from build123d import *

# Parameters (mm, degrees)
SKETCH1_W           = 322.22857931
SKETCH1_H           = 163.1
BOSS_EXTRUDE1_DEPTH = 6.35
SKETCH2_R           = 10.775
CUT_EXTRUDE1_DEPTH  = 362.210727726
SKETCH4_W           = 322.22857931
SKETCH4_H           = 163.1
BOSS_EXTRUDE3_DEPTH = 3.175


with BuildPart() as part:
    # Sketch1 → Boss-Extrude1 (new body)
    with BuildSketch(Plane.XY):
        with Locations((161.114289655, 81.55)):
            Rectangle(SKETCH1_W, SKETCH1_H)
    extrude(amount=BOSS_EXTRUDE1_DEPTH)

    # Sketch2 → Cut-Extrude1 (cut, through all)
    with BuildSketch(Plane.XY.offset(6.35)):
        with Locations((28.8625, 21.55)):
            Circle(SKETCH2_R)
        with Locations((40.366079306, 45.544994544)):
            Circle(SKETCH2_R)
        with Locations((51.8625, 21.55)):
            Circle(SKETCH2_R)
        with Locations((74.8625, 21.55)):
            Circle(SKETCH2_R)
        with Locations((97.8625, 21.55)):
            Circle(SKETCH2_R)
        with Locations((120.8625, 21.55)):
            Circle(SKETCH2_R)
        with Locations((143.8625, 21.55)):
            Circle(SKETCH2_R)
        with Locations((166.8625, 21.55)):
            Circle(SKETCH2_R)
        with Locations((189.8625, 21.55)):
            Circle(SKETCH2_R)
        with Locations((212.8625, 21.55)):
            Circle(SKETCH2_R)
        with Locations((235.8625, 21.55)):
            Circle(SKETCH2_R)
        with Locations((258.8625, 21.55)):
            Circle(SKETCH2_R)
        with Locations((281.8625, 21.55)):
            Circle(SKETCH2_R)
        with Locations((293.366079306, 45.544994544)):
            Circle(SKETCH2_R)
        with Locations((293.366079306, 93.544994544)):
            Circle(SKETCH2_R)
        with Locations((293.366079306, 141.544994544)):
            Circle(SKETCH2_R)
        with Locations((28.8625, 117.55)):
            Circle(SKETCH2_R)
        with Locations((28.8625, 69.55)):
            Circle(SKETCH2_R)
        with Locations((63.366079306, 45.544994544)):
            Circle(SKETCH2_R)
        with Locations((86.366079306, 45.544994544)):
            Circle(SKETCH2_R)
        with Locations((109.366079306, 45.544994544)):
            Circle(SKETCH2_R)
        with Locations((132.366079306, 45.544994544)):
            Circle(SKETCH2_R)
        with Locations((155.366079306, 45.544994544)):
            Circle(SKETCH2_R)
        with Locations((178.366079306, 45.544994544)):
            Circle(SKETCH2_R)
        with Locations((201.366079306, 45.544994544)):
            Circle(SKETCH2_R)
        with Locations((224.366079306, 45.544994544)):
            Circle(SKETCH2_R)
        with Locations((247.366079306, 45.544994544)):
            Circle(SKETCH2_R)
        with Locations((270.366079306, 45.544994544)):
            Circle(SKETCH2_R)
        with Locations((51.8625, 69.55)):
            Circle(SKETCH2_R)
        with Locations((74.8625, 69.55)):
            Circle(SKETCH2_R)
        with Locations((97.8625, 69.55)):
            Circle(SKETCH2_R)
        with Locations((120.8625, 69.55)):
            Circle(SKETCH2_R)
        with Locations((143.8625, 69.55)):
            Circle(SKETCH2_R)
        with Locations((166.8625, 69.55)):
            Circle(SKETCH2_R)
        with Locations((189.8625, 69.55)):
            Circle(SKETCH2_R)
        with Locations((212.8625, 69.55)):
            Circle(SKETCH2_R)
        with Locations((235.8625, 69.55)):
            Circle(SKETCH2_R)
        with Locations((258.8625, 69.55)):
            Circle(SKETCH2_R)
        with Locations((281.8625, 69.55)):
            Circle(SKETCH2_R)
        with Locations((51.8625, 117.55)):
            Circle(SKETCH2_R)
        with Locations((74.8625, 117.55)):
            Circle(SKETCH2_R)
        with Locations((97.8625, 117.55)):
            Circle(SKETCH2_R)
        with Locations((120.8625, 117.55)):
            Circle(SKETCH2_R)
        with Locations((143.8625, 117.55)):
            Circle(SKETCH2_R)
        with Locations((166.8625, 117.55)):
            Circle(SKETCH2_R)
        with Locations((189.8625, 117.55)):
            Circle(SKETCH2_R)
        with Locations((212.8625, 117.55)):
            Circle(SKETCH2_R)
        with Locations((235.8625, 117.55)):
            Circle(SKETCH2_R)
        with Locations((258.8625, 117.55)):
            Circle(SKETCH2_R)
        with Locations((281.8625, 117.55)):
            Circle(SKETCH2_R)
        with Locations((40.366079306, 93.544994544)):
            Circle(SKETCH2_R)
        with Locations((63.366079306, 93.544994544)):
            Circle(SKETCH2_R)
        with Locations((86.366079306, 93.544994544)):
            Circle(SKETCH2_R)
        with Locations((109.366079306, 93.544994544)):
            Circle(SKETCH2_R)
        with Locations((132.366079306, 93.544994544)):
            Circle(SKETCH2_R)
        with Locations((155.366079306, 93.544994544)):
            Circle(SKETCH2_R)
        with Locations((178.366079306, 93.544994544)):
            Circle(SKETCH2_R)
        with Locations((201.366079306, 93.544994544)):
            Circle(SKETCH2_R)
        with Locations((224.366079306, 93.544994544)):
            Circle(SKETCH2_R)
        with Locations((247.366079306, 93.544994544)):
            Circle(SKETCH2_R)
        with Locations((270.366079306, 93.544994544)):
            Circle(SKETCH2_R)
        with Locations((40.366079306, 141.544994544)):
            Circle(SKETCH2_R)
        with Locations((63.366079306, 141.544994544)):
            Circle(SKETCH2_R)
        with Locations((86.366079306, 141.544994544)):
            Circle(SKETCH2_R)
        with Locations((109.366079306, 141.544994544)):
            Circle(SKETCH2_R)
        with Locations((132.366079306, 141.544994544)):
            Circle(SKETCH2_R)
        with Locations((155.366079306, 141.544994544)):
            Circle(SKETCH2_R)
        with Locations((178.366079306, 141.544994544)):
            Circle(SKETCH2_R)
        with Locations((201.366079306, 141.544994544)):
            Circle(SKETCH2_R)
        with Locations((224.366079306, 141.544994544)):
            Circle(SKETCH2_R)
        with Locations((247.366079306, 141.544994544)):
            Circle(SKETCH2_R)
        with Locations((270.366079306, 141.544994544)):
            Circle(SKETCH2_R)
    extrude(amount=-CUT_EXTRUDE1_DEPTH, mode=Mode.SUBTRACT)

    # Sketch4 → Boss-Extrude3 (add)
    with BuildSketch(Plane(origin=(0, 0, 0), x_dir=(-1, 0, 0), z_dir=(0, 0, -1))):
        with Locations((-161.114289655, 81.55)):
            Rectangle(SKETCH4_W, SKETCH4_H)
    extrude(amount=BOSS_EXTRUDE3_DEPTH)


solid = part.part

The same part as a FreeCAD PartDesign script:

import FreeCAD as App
import Part
import Sketcher
from FreeCAD import Vector
Q = App.Units.Quantity


def add_polygon(sketch, points):
    """Adds a closed chain of lines whose ends are joined by coincident constraints."""
    first, n = sketch.GeometryCount, len(points)
    for a, b in zip(points, points[1:] + points[:1]):
        sketch.addGeometry(Part.LineSegment(App.Vector(*a, 0), App.Vector(*b, 0)), False)
    for i in range(n):
        sketch.addConstraint(Sketcher.Constraint("Coincident", first + i, 2, first + (i + 1) % n, 1))

doc = App.newDocument("Part")
body = doc.addObject("PartDesign::Body", "Body")

sketch1 = doc.addObject("Sketcher::SketchObject", "Sketch")
body.addObject(sketch1)
sketch1.AttachmentSupport = (doc.XY_Plane, [""])
sketch1.MapMode = "FlatFace"
add_polygon(sketch1, [(0, 163), (0, 0), (322, 0), (322, 163)])
sketch1.addConstraint(Sketcher.Constraint("Vertical", 0))
sketch1.addConstraint(Sketcher.Constraint("Horizontal", 1))
sketch1.addConstraint(Sketcher.Constraint("Vertical", 2))
sketch1.addConstraint(Sketcher.Constraint("Horizontal", 3))
sketch1.addConstraint(Sketcher.Constraint("Coincident", 0, 2, -1, 1))
sketch1.addConstraint(Sketcher.Constraint("DistanceY", 0, 2, 0, 1, 163.1))
sketch1.addConstraint(Sketcher.Constraint("DistanceX", 1, 1, 1, 2, 322.228579))
pad1 = doc.addObject("PartDesign::Pad", "Pad")
body.addObject(pad1)
pad1.Profile = sketch1
pad1.Length = Q("0.25 in")

sketch2 = doc.addObject("Sketcher::SketchObject", "Sketch001")
body.addObject(sketch2)
sketch2.AttachmentSupport = (doc.XY_Plane, [""])
sketch2.MapMode = "FlatFace"
sketch2.AttachmentOffset = App.Placement(Vector(0, 0, 0.25 * 25.4), App.Rotation())
sketch2.addGeometry(Part.Circle(Vector(29, 22, 0), Vector(0, 0, 1), 11), False)
sketch2.addGeometry(Part.Circle(Vector(40, 46, 0), Vector(0, 0, 1), 11), False)
sketch2.addGeometry(Part.Circle(Vector(52, 22, 0), Vector(0, 0, 1), 11), False)
sketch2.addGeometry(Part.Circle(Vector(75, 22, 0), Vector(0, 0, 1), 11), False)
sketch2.addGeometry(Part.Circle(Vector(98, 22, 0), Vector(0, 0, 1), 11), False)
sketch2.addGeometry(Part.Circle(Vector(121, 22, 0), Vector(0, 0, 1), 11), False)
sketch2.addGeometry(Part.Circle(Vector(144, 22, 0), Vector(0, 0, 1), 11), False)
sketch2.addGeometry(Part.Circle(Vector(167, 22, 0), Vector(0, 0, 1), 11), False)
sketch2.addGeometry(Part.Circle(Vector(190, 22, 0), Vector(0, 0, 1), 11), False)
sketch2.addGeometry(Part.Circle(Vector(213, 22, 0), Vector(0, 0, 1), 11), False)
sketch2.addGeometry(Part.Circle(Vector(236, 22, 0), Vector(0, 0, 1), 11), False)
sketch2.addGeometry(Part.Circle(Vector(259, 22, 0), Vector(0, 0, 1), 11), False)
sketch2.addGeometry(Part.Circle(Vector(282, 22, 0), Vector(0, 0, 1), 11), False)
sketch2.addGeometry(Part.Circle(Vector(293, 46, 0), Vector(0, 0, 1), 11), False)
sketch2.addGeometry(Part.Circle(Vector(293, 94, 0), Vector(0, 0, 1), 11), False)
sketch2.addGeometry(Part.Circle(Vector(293, 142, 0), Vector(0, 0, 1), 11), False)
sketch2.addGeometry(Part.Circle(Vector(29, 118, 0), Vector(0, 0, 1), 11), False)
sketch2.addGeometry(Part.Circle(Vector(29, 70, 0), Vector(0, 0, 1), 11), False)
sketch2.addGeometry(Part.Circle(Vector(63, 46, 0), Vector(0, 0, 1), 11), False)
sketch2.addGeometry(Part.Circle(Vector(86, 46, 0), Vector(0, 0, 1), 11), False)
sketch2.addGeometry(Part.Circle(Vector(109, 46, 0), Vector(0, 0, 1), 11), False)
sketch2.addGeometry(Part.Circle(Vector(132, 46, 0), Vector(0, 0, 1), 11), False)
sketch2.addGeometry(Part.Circle(Vector(155, 46, 0), Vector(0, 0, 1), 11), False)
sketch2.addGeometry(Part.Circle(Vector(178, 46, 0), Vector(0, 0, 1), 11), False)
sketch2.addGeometry(Part.Circle(Vector(201, 46, 0), Vector(0, 0, 1), 11), False)
sketch2.addGeometry(Part.Circle(Vector(224, 46, 0), Vector(0, 0, 1), 11), False)
sketch2.addGeometry(Part.Circle(Vector(247, 46, 0), Vector(0, 0, 1), 11), False)
sketch2.addGeometry(Part.Circle(Vector(270, 46, 0), Vector(0, 0, 1), 11), False)
sketch2.addGeometry(Part.Circle(Vector(52, 70, 0), Vector(0, 0, 1), 11), False)
sketch2.addGeometry(Part.Circle(Vector(75, 70, 0), Vector(0, 0, 1), 11), False)
sketch2.addGeometry(Part.Circle(Vector(98, 70, 0), Vector(0, 0, 1), 11), False)
sketch2.addGeometry(Part.Circle(Vector(121, 70, 0), Vector(0, 0, 1), 11), False)
sketch2.addGeometry(Part.Circle(Vector(144, 70, 0), Vector(0, 0, 1), 11), False)
sketch2.addGeometry(Part.Circle(Vector(167, 70, 0), Vector(0, 0, 1), 11), False)
sketch2.addGeometry(Part.Circle(Vector(190, 70, 0), Vector(0, 0, 1), 11), False)
sketch2.addGeometry(Part.Circle(Vector(213, 70, 0), Vector(0, 0, 1), 11), False)
sketch2.addGeometry(Part.Circle(Vector(236, 70, 0), Vector(0, 0, 1), 11), False)
sketch2.addGeometry(Part.Circle(Vector(259, 70, 0), Vector(0, 0, 1), 11), False)
sketch2.addGeometry(Part.Circle(Vector(282, 70, 0), Vector(0, 0, 1), 11), False)
sketch2.addGeometry(Part.Circle(Vector(52, 118, 0), Vector(0, 0, 1), 11), False)
sketch2.addGeometry(Part.Circle(Vector(75, 118, 0), Vector(0, 0, 1), 11), False)
sketch2.addGeometry(Part.Circle(Vector(98, 118, 0), Vector(0, 0, 1), 11), False)
sketch2.addGeometry(Part.Circle(Vector(121, 118, 0), Vector(0, 0, 1), 11), False)
sketch2.addGeometry(Part.Circle(Vector(144, 118, 0), Vector(0, 0, 1), 11), False)
sketch2.addGeometry(Part.Circle(Vector(167, 118, 0), Vector(0, 0, 1), 11), False)
sketch2.addGeometry(Part.Circle(Vector(190, 118, 0), Vector(0, 0, 1), 11), False)
sketch2.addGeometry(Part.Circle(Vector(213, 118, 0), Vector(0, 0, 1), 11), False)
sketch2.addGeometry(Part.Circle(Vector(236, 118, 0), Vector(0, 0, 1), 11), False)
sketch2.addGeometry(Part.Circle(Vector(259, 118, 0), Vector(0, 0, 1), 11), False)
sketch2.addGeometry(Part.Circle(Vector(282, 118, 0), Vector(0, 0, 1), 11), False)
sketch2.addGeometry(Part.Circle(Vector(40, 94, 0), Vector(0, 0, 1), 11), False)
sketch2.addGeometry(Part.Circle(Vector(63, 94, 0), Vector(0, 0, 1), 11), False)
sketch2.addGeometry(Part.Circle(Vector(86, 94, 0), Vector(0, 0, 1), 11), False)
sketch2.addGeometry(Part.Circle(Vector(109, 94, 0), Vector(0, 0, 1), 11), False)
sketch2.addGeometry(Part.Circle(Vector(132, 94, 0), Vector(0, 0, 1), 11), False)
sketch2.addGeometry(Part.Circle(Vector(155, 94, 0), Vector(0, 0, 1), 11), False)
sketch2.addGeometry(Part.Circle(Vector(178, 94, 0), Vector(0, 0, 1), 11), False)
sketch2.addGeometry(Part.Circle(Vector(201, 94, 0), Vector(0, 0, 1), 11), False)
sketch2.addGeometry(Part.Circle(Vector(224, 94, 0), Vector(0, 0, 1), 11), False)
sketch2.addGeometry(Part.Circle(Vector(247, 94, 0), Vector(0, 0, 1), 11), False)
sketch2.addGeometry(Part.Circle(Vector(270, 94, 0), Vector(0, 0, 1), 11), False)
sketch2.addGeometry(Part.Circle(Vector(40, 142, 0), Vector(0, 0, 1), 11), False)
sketch2.addGeometry(Part.Circle(Vector(63, 142, 0), Vector(0, 0, 1), 11), False)
sketch2.addGeometry(Part.Circle(Vector(86, 142, 0), Vector(0, 0, 1), 11), False)
sketch2.addGeometry(Part.Circle(Vector(109, 142, 0), Vector(0, 0, 1), 11), False)
sketch2.addGeometry(Part.Circle(Vector(132, 142, 0), Vector(0, 0, 1), 11), False)
sketch2.addGeometry(Part.Circle(Vector(155, 142, 0), Vector(0, 0, 1), 11), False)
sketch2.addGeometry(Part.Circle(Vector(178, 142, 0), Vector(0, 0, 1), 11), False)
sketch2.addGeometry(Part.Circle(Vector(201, 142, 0), Vector(0, 0, 1), 11), False)
sketch2.addGeometry(Part.Circle(Vector(224, 142, 0), Vector(0, 0, 1), 11), False)
sketch2.addGeometry(Part.Circle(Vector(247, 142, 0), Vector(0, 0, 1), 11), False)
sketch2.addGeometry(Part.Circle(Vector(270, 142, 0), Vector(0, 0, 1), 11), False)
sketch2.addConstraint(Sketcher.Constraint("Equal", 0, 1))
sketch2.addConstraint(Sketcher.Constraint("Equal", 1, 2))
sketch2.addConstraint(Sketcher.Constraint("Equal", 2, 3))
sketch2.addConstraint(Sketcher.Constraint("Equal", 3, 4))
sketch2.addConstraint(Sketcher.Constraint("Equal", 4, 5))
sketch2.addConstraint(Sketcher.Constraint("Equal", 5, 6))
sketch2.addConstraint(Sketcher.Constraint("Equal", 6, 7))
sketch2.addConstraint(Sketcher.Constraint("Equal", 7, 8))
sketch2.addConstraint(Sketcher.Constraint("Equal", 8, 9))
sketch2.addConstraint(Sketcher.Constraint("Equal", 9, 10))
sketch2.addConstraint(Sketcher.Constraint("Equal", 10, 11))
sketch2.addConstraint(Sketcher.Constraint("Equal", 11, 12))
sketch2.addConstraint(Sketcher.Constraint("Equal", 12, 13))
sketch2.addConstraint(Sketcher.Constraint("Equal", 13, 14))
sketch2.addConstraint(Sketcher.Constraint("Equal", 14, 15))
sketch2.addConstraint(Sketcher.Constraint("Equal", 15, 16))
sketch2.addConstraint(Sketcher.Constraint("Equal", 16, 17))
sketch2.addConstraint(Sketcher.Constraint("Equal", 17, 18))
sketch2.addConstraint(Sketcher.Constraint("Equal", 18, 19))
sketch2.addConstraint(Sketcher.Constraint("Equal", 19, 20))
sketch2.addConstraint(Sketcher.Constraint("Equal", 20, 21))
sketch2.addConstraint(Sketcher.Constraint("Equal", 21, 22))
sketch2.addConstraint(Sketcher.Constraint("Equal", 22, 23))
sketch2.addConstraint(Sketcher.Constraint("Equal", 23, 24))
sketch2.addConstraint(Sketcher.Constraint("Equal", 24, 25))
sketch2.addConstraint(Sketcher.Constraint("Equal", 25, 26))
sketch2.addConstraint(Sketcher.Constraint("Equal", 26, 27))
sketch2.addConstraint(Sketcher.Constraint("Equal", 27, 28))
sketch2.addConstraint(Sketcher.Constraint("Equal", 28, 29))
sketch2.addConstraint(Sketcher.Constraint("Equal", 29, 30))
sketch2.addConstraint(Sketcher.Constraint("Equal", 30, 31))
sketch2.addConstraint(Sketcher.Constraint("Equal", 31, 32))
sketch2.addConstraint(Sketcher.Constraint("Equal", 32, 33))
sketch2.addConstraint(Sketcher.Constraint("Equal", 33, 34))
sketch2.addConstraint(Sketcher.Constraint("Equal", 34, 35))
sketch2.addConstraint(Sketcher.Constraint("Equal", 35, 36))
sketch2.addConstraint(Sketcher.Constraint("Equal", 36, 37))
sketch2.addConstraint(Sketcher.Constraint("Equal", 37, 38))
sketch2.addConstraint(Sketcher.Constraint("Equal", 38, 39))
sketch2.addConstraint(Sketcher.Constraint("Equal", 39, 40))
sketch2.addConstraint(Sketcher.Constraint("Equal", 40, 41))
sketch2.addConstraint(Sketcher.Constraint("Equal", 41, 42))
sketch2.addConstraint(Sketcher.Constraint("Equal", 42, 43))
sketch2.addConstraint(Sketcher.Constraint("Equal", 43, 44))
sketch2.addConstraint(Sketcher.Constraint("Equal", 44, 45))
sketch2.addConstraint(Sketcher.Constraint("Equal", 45, 46))
sketch2.addConstraint(Sketcher.Constraint("Equal", 46, 47))
sketch2.addConstraint(Sketcher.Constraint("Equal", 47, 48))
sketch2.addConstraint(Sketcher.Constraint("Equal", 48, 49))
sketch2.addConstraint(Sketcher.Constraint("Equal", 49, 50))
sketch2.addConstraint(Sketcher.Constraint("Equal", 50, 51))
sketch2.addConstraint(Sketcher.Constraint("Equal", 51, 52))
sketch2.addConstraint(Sketcher.Constraint("Equal", 52, 53))
sketch2.addConstraint(Sketcher.Constraint("Equal", 53, 54))
sketch2.addConstraint(Sketcher.Constraint("Equal", 54, 55))
sketch2.addConstraint(Sketcher.Constraint("Equal", 55, 56))
sketch2.addConstraint(Sketcher.Constraint("Equal", 56, 57))
sketch2.addConstraint(Sketcher.Constraint("Equal", 57, 58))
sketch2.addConstraint(Sketcher.Constraint("Equal", 58, 59))
sketch2.addConstraint(Sketcher.Constraint("Equal", 59, 60))
sketch2.addConstraint(Sketcher.Constraint("Equal", 60, 61))
sketch2.addConstraint(Sketcher.Constraint("Equal", 61, 62))
sketch2.addConstraint(Sketcher.Constraint("Equal", 62, 63))
sketch2.addConstraint(Sketcher.Constraint("Equal", 63, 64))
sketch2.addConstraint(Sketcher.Constraint("Equal", 64, 65))
sketch2.addConstraint(Sketcher.Constraint("Equal", 65, 66))
sketch2.addConstraint(Sketcher.Constraint("Equal", 66, 67))
sketch2.addConstraint(Sketcher.Constraint("Equal", 67, 68))
sketch2.addConstraint(Sketcher.Constraint("Equal", 68, 69))
sketch2.addConstraint(Sketcher.Constraint("Equal", 69, 70))
sketch2.addConstraint(Sketcher.Constraint("Equal", 70, 71))
sketch2.addConstraint(Sketcher.Constraint("Horizontal", 0, 3, 2, 3))
sketch2.addConstraint(Sketcher.Constraint("Horizontal", 2, 3, 3, 3))
sketch2.addConstraint(Sketcher.Constraint("Horizontal", 3, 3, 4, 3))
sketch2.addConstraint(Sketcher.Constraint("Horizontal", 4, 3, 5, 3))
sketch2.addConstraint(Sketcher.Constraint("Horizontal", 5, 3, 6, 3))
sketch2.addConstraint(Sketcher.Constraint("Horizontal", 6, 3, 7, 3))
sketch2.addConstraint(Sketcher.Constraint("Horizontal", 7, 3, 8, 3))
sketch2.addConstraint(Sketcher.Constraint("Horizontal", 8, 3, 9, 3))
sketch2.addConstraint(Sketcher.Constraint("Horizontal", 9, 3, 10, 3))
sketch2.addConstraint(Sketcher.Constraint("Horizontal", 10, 3, 11, 3))
sketch2.addConstraint(Sketcher.Constraint("Horizontal", 11, 3, 12, 3))
sketch2.addConstraint(Sketcher.Constraint("Horizontal", 1, 3, 13, 3))
sketch2.addConstraint(Sketcher.Constraint("Horizontal", 13, 3, 18, 3))
sketch2.addConstraint(Sketcher.Constraint("Horizontal", 18, 3, 19, 3))
sketch2.addConstraint(Sketcher.Constraint("Horizontal", 19, 3, 20, 3))
sketch2.addConstraint(Sketcher.Constraint("Horizontal", 20, 3, 21, 3))
sketch2.addConstraint(Sketcher.Constraint("Horizontal", 21, 3, 22, 3))
sketch2.addConstraint(Sketcher.Constraint("Horizontal", 22, 3, 23, 3))
sketch2.addConstraint(Sketcher.Constraint("Horizontal", 23, 3, 24, 3))
sketch2.addConstraint(Sketcher.Constraint("Horizontal", 24, 3, 25, 3))
sketch2.addConstraint(Sketcher.Constraint("Horizontal", 25, 3, 26, 3))
sketch2.addConstraint(Sketcher.Constraint("Horizontal", 26, 3, 27, 3))
sketch2.addConstraint(Sketcher.Constraint("Horizontal", 17, 3, 28, 3))
sketch2.addConstraint(Sketcher.Constraint("Horizontal", 28, 3, 29, 3))
sketch2.addConstraint(Sketcher.Constraint("Horizontal", 29, 3, 30, 3))
sketch2.addConstraint(Sketcher.Constraint("Horizontal", 30, 3, 31, 3))
sketch2.addConstraint(Sketcher.Constraint("Horizontal", 31, 3, 32, 3))
sketch2.addConstraint(Sketcher.Constraint("Horizontal", 32, 3, 33, 3))
sketch2.addConstraint(Sketcher.Constraint("Horizontal", 33, 3, 34, 3))
sketch2.addConstraint(Sketcher.Constraint("Horizontal", 34, 3, 35, 3))
sketch2.addConstraint(Sketcher.Constraint("Horizontal", 35, 3, 36, 3))
sketch2.addConstraint(Sketcher.Constraint("Horizontal", 36, 3, 37, 3))
sketch2.addConstraint(Sketcher.Constraint("Horizontal", 37, 3, 38, 3))
sketch2.addConstraint(Sketcher.Constraint("Horizontal", 16, 3, 39, 3))
sketch2.addConstraint(Sketcher.Constraint("Horizontal", 39, 3, 40, 3))
sketch2.addConstraint(Sketcher.Constraint("Horizontal", 40, 3, 41, 3))
sketch2.addConstraint(Sketcher.Constraint("Horizontal", 41, 3, 42, 3))
sketch2.addConstraint(Sketcher.Constraint("Horizontal", 42, 3, 43, 3))
sketch2.addConstraint(Sketcher.Constraint("Horizontal", 43, 3, 44, 3))
sketch2.addConstraint(Sketcher.Constraint("Horizontal", 44, 3, 45, 3))
sketch2.addConstraint(Sketcher.Constraint("Horizontal", 45, 3, 46, 3))
sketch2.addConstraint(Sketcher.Constraint("Horizontal", 46, 3, 47, 3))
sketch2.addConstraint(Sketcher.Constraint("Horizontal", 47, 3, 48, 3))
sketch2.addConstraint(Sketcher.Constraint("Horizontal", 48, 3, 49, 3))
sketch2.addConstraint(Sketcher.Constraint("Horizontal", 14, 3, 50, 3))
sketch2.addConstraint(Sketcher.Constraint("Horizontal", 50, 3, 51, 3))
sketch2.addConstraint(Sketcher.Constraint("Horizontal", 51, 3, 52, 3))
sketch2.addConstraint(Sketcher.Constraint("Horizontal", 52, 3, 53, 3))
sketch2.addConstraint(Sketcher.Constraint("Horizontal", 53, 3, 54, 3))
sketch2.addConstraint(Sketcher.Constraint("Horizontal", 54, 3, 55, 3))
sketch2.addConstraint(Sketcher.Constraint("Horizontal", 55, 3, 56, 3))
sketch2.addConstraint(Sketcher.Constraint("Horizontal", 56, 3, 57, 3))
sketch2.addConstraint(Sketcher.Constraint("Horizontal", 57, 3, 58, 3))
sketch2.addConstraint(Sketcher.Constraint("Horizontal", 58, 3, 59, 3))
sketch2.addConstraint(Sketcher.Constraint("Horizontal", 59, 3, 60, 3))
sketch2.addConstraint(Sketcher.Constraint("Horizontal", 15, 3, 61, 3))
sketch2.addConstraint(Sketcher.Constraint("Horizontal", 61, 3, 62, 3))
sketch2.addConstraint(Sketcher.Constraint("Horizontal", 62, 3, 63, 3))
sketch2.addConstraint(Sketcher.Constraint("Horizontal", 63, 3, 64, 3))
sketch2.addConstraint(Sketcher.Constraint("Horizontal", 64, 3, 65, 3))
sketch2.addConstraint(Sketcher.Constraint("Horizontal", 65, 3, 66, 3))
sketch2.addConstraint(Sketcher.Constraint("Horizontal", 66, 3, 67, 3))
sketch2.addConstraint(Sketcher.Constraint("Horizontal", 67, 3, 68, 3))
sketch2.addConstraint(Sketcher.Constraint("Horizontal", 68, 3, 69, 3))
sketch2.addConstraint(Sketcher.Constraint("Horizontal", 69, 3, 70, 3))
sketch2.addConstraint(Sketcher.Constraint("Horizontal", 70, 3, 71, 3))
sketch2.addConstraint(Sketcher.Constraint("Vertical", 13, 3, 14, 3))
sketch2.addConstraint(Sketcher.Constraint("Vertical", 14, 3, 15, 3))
sketch2.addConstraint(Sketcher.Constraint("Vertical", 0, 3, 16, 3))
sketch2.addConstraint(Sketcher.Constraint("Vertical", 16, 3, 17, 3))
sketch2.addConstraint(Sketcher.Constraint("Vertical", 2, 3, 28, 3))
sketch2.addConstraint(Sketcher.Constraint("Vertical", 3, 3, 29, 3))
sketch2.addConstraint(Sketcher.Constraint("Vertical", 4, 3, 30, 3))
sketch2.addConstraint(Sketcher.Constraint("Vertical", 5, 3, 31, 3))
sketch2.addConstraint(Sketcher.Constraint("Vertical", 6, 3, 32, 3))
sketch2.addConstraint(Sketcher.Constraint("Vertical", 7, 3, 33, 3))
sketch2.addConstraint(Sketcher.Constraint("Vertical", 8, 3, 34, 3))
sketch2.addConstraint(Sketcher.Constraint("Vertical", 9, 3, 35, 3))
sketch2.addConstraint(Sketcher.Constraint("Vertical", 10, 3, 36, 3))
sketch2.addConstraint(Sketcher.Constraint("Vertical", 11, 3, 37, 3))
sketch2.addConstraint(Sketcher.Constraint("Vertical", 12, 3, 38, 3))
sketch2.addConstraint(Sketcher.Constraint("Vertical", 28, 3, 39, 3))
sketch2.addConstraint(Sketcher.Constraint("Vertical", 29, 3, 40, 3))
sketch2.addConstraint(Sketcher.Constraint("Vertical", 30, 3, 41, 3))
sketch2.addConstraint(Sketcher.Constraint("Vertical", 31, 3, 42, 3))
sketch2.addConstraint(Sketcher.Constraint("Vertical", 32, 3, 43, 3))
sketch2.addConstraint(Sketcher.Constraint("Vertical", 33, 3, 44, 3))
sketch2.addConstraint(Sketcher.Constraint("Vertical", 34, 3, 45, 3))
sketch2.addConstraint(Sketcher.Constraint("Vertical", 35, 3, 46, 3))
sketch2.addConstraint(Sketcher.Constraint("Vertical", 36, 3, 47, 3))
sketch2.addConstraint(Sketcher.Constraint("Vertical", 37, 3, 48, 3))
sketch2.addConstraint(Sketcher.Constraint("Vertical", 38, 3, 49, 3))
sketch2.addConstraint(Sketcher.Constraint("Vertical", 1, 3, 50, 3))
sketch2.addConstraint(Sketcher.Constraint("Vertical", 18, 3, 51, 3))
sketch2.addConstraint(Sketcher.Constraint("Vertical", 19, 3, 52, 3))
sketch2.addConstraint(Sketcher.Constraint("Vertical", 20, 3, 53, 3))
sketch2.addConstraint(Sketcher.Constraint("Vertical", 21, 3, 54, 3))
sketch2.addConstraint(Sketcher.Constraint("Vertical", 22, 3, 55, 3))
sketch2.addConstraint(Sketcher.Constraint("Vertical", 23, 3, 56, 3))
sketch2.addConstraint(Sketcher.Constraint("Vertical", 24, 3, 57, 3))
sketch2.addConstraint(Sketcher.Constraint("Vertical", 25, 3, 58, 3))
sketch2.addConstraint(Sketcher.Constraint("Vertical", 26, 3, 59, 3))
sketch2.addConstraint(Sketcher.Constraint("Vertical", 27, 3, 60, 3))
sketch2.addConstraint(Sketcher.Constraint("Vertical", 50, 3, 61, 3))
sketch2.addConstraint(Sketcher.Constraint("Vertical", 51, 3, 62, 3))
sketch2.addConstraint(Sketcher.Constraint("Vertical", 52, 3, 63, 3))
sketch2.addConstraint(Sketcher.Constraint("Vertical", 53, 3, 64, 3))
sketch2.addConstraint(Sketcher.Constraint("Vertical", 54, 3, 65, 3))
sketch2.addConstraint(Sketcher.Constraint("Vertical", 55, 3, 66, 3))
sketch2.addConstraint(Sketcher.Constraint("Vertical", 56, 3, 67, 3))
sketch2.addConstraint(Sketcher.Constraint("Vertical", 57, 3, 68, 3))
sketch2.addConstraint(Sketcher.Constraint("Vertical", 58, 3, 69, 3))
sketch2.addConstraint(Sketcher.Constraint("Vertical", 59, 3, 70, 3))
sketch2.addConstraint(Sketcher.Constraint("Vertical", 60, 3, 71, 3))
sketch2.addConstraint(Sketcher.Constraint("Diameter", 0, 21.55))
sketch2.addConstraint(Sketcher.Constraint("DistanceX", -1, 1, 0, 3, 28.8625))
sketch2.addConstraint(Sketcher.Constraint("DistanceY", -1, 1, 0, 3, 21.55))
sketch2.addConstraint(Sketcher.Constraint("DistanceX", -1, 1, 2, 3, 51.8625))
sketch2.addConstraint(Sketcher.Constraint("DistanceX", -1, 1, 3, 3, 74.8625))
sketch2.addConstraint(Sketcher.Constraint("DistanceX", -1, 1, 4, 3, 97.8625))
sketch2.addConstraint(Sketcher.Constraint("DistanceX", -1, 1, 5, 3, 120.8625))
sketch2.addConstraint(Sketcher.Constraint("DistanceX", -1, 1, 6, 3, 143.8625))
sketch2.addConstraint(Sketcher.Constraint("DistanceX", -1, 1, 7, 3, 166.8625))
sketch2.addConstraint(Sketcher.Constraint("DistanceX", -1, 1, 8, 3, 189.8625))
sketch2.addConstraint(Sketcher.Constraint("DistanceX", -1, 1, 9, 3, 212.8625))
sketch2.addConstraint(Sketcher.Constraint("DistanceX", -1, 1, 10, 3, 235.8625))
sketch2.addConstraint(Sketcher.Constraint("DistanceX", -1, 1, 11, 3, 258.8625))
sketch2.addConstraint(Sketcher.Constraint("DistanceX", -1, 1, 12, 3, 281.8625))
sketch2.addConstraint(Sketcher.Constraint("DistanceY", -1, 1, 16, 3, 117.55))
sketch2.addConstraint(Sketcher.Constraint("DistanceY", -1, 1, 17, 3, 69.55))
sketch2.addConstraint(Sketcher.Constraint("DistanceX", -1, 1, 1, 3, 40.366079))
sketch2.addConstraint(Sketcher.Constraint("DistanceX", -1, 1, 13, 3, 293.366079))
sketch2.addConstraint(Sketcher.Constraint("DistanceX", -1, 1, 18, 3, 63.366079))
sketch2.addConstraint(Sketcher.Constraint("DistanceX", -1, 1, 19, 3, 86.366079))
sketch2.addConstraint(Sketcher.Constraint("DistanceX", -1, 1, 20, 3, 109.366079))
sketch2.addConstraint(Sketcher.Constraint("DistanceX", -1, 1, 21, 3, 132.366079))
sketch2.addConstraint(Sketcher.Constraint("DistanceX", -1, 1, 22, 3, 155.366079))
sketch2.addConstraint(Sketcher.Constraint("DistanceX", -1, 1, 23, 3, 178.366079))
sketch2.addConstraint(Sketcher.Constraint("DistanceX", -1, 1, 24, 3, 201.366079))
sketch2.addConstraint(Sketcher.Constraint("DistanceX", -1, 1, 25, 3, 224.366079))
sketch2.addConstraint(Sketcher.Constraint("DistanceX", -1, 1, 26, 3, 247.366079))
sketch2.addConstraint(Sketcher.Constraint("DistanceX", -1, 1, 27, 3, 270.366079))
sketch2.addConstraint(Sketcher.Constraint("DistanceY", -1, 1, 1, 3, 45.544995))
sketch2.addConstraint(Sketcher.Constraint("DistanceY", -1, 1, 14, 3, 93.544995))
sketch2.addConstraint(Sketcher.Constraint("DistanceY", -1, 1, 15, 3, 141.544995))
pocket1 = doc.addObject("PartDesign::Pocket", "Pocket")
body.addObject(pocket1)
pocket1.Profile = sketch2
pocket1.Type = "ThroughAll"

sketch3 = doc.addObject("Sketcher::SketchObject", "Sketch002")
body.addObject(sketch3)
sketch3.AttachmentSupport = (doc.XY_Plane, [""])
sketch3.MapMode = "FlatFace"
add_polygon(sketch3, [(322, 163), (322, 0), (0, 0), (0, 163)])
sketch3.addConstraint(Sketcher.Constraint("Vertical", 0))
sketch3.addConstraint(Sketcher.Constraint("Horizontal", 1))
sketch3.addConstraint(Sketcher.Constraint("Vertical", 2))
sketch3.addConstraint(Sketcher.Constraint("Horizontal", 3))
sketch3.addConstraint(Sketcher.Constraint("Coincident", 1, 2, -1, 1))
sketch3.addConstraint(Sketcher.Constraint("DistanceY", 0, 2, 0, 1, 163.1))
sketch3.addConstraint(Sketcher.Constraint("DistanceX", 1, 2, 1, 1, 322.228579))
pad2 = doc.addObject("PartDesign::Pad", "Pad001")
body.addObject(pad2)
pad2.Profile = sketch3
pad2.Length = Q("0.125 in")
pad2.Reversed = True

doc.recompute()
